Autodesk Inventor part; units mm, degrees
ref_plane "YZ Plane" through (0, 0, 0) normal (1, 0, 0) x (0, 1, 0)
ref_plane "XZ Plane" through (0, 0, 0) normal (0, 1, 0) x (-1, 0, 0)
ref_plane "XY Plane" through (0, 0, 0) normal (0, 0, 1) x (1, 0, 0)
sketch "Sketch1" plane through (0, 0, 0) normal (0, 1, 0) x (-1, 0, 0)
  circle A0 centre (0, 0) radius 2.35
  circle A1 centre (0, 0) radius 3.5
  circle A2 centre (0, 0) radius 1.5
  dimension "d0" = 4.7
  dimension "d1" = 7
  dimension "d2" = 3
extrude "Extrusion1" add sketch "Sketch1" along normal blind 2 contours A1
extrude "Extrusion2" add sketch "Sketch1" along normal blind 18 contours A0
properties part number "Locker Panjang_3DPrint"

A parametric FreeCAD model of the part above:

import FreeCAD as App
import Part
import Sketcher
from FreeCAD import Vector

doc = App.newDocument("Part")
body = doc.addObject("PartDesign::Body", "Body")

# Sketch on XZ plane
sketch1 = body.newObject("Sketcher::SketchObject", "Sketch")
sketch1.AttachmentSupport = (doc.getObject("XZ_Plane"), [""])
sketch1.MapMode = "FlatFace"
sketch1.addGeometry(Part.Circle(Vector(0, 0, 0), Vector(0, 0, 1), 3.5), False)
sketch1.addGeometry(Part.Circle(Vector(0, 0, 0), Vector(0, 0, 1), 2.4), False)
sketch1.addConstraint(Sketcher.Constraint("Coincident", 0, 3, -1, 1))
sketch1.addConstraint(Sketcher.Constraint("Coincident", 1, 3, -1, 1))
sketch1.addConstraint(Sketcher.Constraint("Diameter", 0, 7.0))
sketch1.addConstraint(Sketcher.Constraint("Diameter", 1, 4.7))
pad1 = body.newObject("PartDesign::Pad", "Pad")
pad1.Profile = sketch1
pad1.Length = 2
pad1.Reversed = True

# Sketch on XZ plane
sketch2 = body.newObject("Sketcher::SketchObject", "Sketch001")
sketch2.AttachmentSupport = (doc.getObject("XZ_Plane"), [""])
sketch2.MapMode = "FlatFace"
sketch2.addGeometry(Part.Circle(Vector(0, 0, 0), Vector(0, 0, 1), 2.4), False)
sketch2.addGeometry(Part.Circle(Vector(0, 0, 0), Vector(0, 0, 1), 1.5), False)
sketch2.addConstraint(Sketcher.Constraint("Coincident", 0, 3, -1, 1))
sketch2.addConstraint(Sketcher.Constraint("Coincident", 1, 3, -1, 1))
sketch2.addConstraint(Sketcher.Constraint("Diameter", 1, 3.0))
sketch2.addConstraint(Sketcher.Constraint("Diameter", 0, 4.7))
pad2 = body.newObject("PartDesign::Pad", "Pad001")
pad2.Profile = sketch2
pad2.Length = 18
pad2.Reversed = True

doc.recompute()
